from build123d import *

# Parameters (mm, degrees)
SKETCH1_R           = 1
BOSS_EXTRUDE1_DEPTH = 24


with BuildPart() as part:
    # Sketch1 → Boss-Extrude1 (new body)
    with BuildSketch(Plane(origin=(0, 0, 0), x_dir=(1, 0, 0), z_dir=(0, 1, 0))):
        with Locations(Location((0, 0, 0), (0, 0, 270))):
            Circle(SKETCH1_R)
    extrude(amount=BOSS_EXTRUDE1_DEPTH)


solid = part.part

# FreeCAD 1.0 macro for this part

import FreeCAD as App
import Part
import Sketcher

V = App.Vector
Q = App.Units.Quantity

doc = App.newDocument("Part")
body = doc.addObject("PartDesign::Body", "Body")

# Sketch on XZ plane
sketch1 = doc.addObject("Sketcher::SketchObject", "Sketch")
body.addObject(sketch1)
sketch1.AttachmentSupport = (doc.XZ_Plane, [""])
sketch1.MapMode = "FlatFace"
sketch1.addGeometry(Part.Circle(V(0, 0, 0), V(0, 0, 1), 1), False)
sketch1.addConstraint([
    Sketcher.Constraint("Coincident", 0, 3, -1, 1),
    Sketcher.Constraint("Diameter", 0, Q("2 mm")),
])
pad1 = doc.addObject("PartDesign::Pad", "Pad")
body.addObject(pad1)
pad1.Profile = sketch1
pad1.Length = 24
pad1.Reversed = True

doc.recompute()
